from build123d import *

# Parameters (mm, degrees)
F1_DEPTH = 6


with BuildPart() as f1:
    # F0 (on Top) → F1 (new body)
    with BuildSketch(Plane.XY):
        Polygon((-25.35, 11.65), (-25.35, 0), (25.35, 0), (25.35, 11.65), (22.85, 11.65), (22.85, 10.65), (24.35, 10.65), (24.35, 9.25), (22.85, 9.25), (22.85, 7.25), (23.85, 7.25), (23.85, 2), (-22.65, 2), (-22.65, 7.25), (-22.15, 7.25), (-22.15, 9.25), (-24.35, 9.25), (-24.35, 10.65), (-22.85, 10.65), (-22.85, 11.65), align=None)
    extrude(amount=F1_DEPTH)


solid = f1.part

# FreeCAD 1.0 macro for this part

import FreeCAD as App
import Part
import Sketcher
from FreeCAD import Vector


def add_polygon(sketch, points):
    """Adds a closed chain of lines whose ends are joined by coincident constraints."""
    first, n = sketch.GeometryCount, len(points)
    for a, b in zip(points, points[1:] + points[:1]):
        sketch.addGeometry(Part.LineSegment(App.Vector(*a, 0), App.Vector(*b, 0)), False)
    for i in range(n):
        sketch.addConstraint(Sketcher.Constraint("Coincident", first + i, 2, first + (i + 1) % n, 1))

doc = App.newDocument("Part")
body = doc.addObject("PartDesign::Body", "Body")

sketch1 = doc.addObject("Sketcher::SketchObject", "Sketch")
body.addObject(sketch1)
sketch1.AttachmentSupport = (doc.XY_Plane, [""])
sketch1.MapMode = "FlatFace"
add_polygon(sketch1, [(-25.4, 11.7), (-25.4, 0), (25.4, 0), (25.4, 11.7), (22.9, 11.7), (22.9, 10.7), (24.4, 10.7), (24.4, 9.2), (22.9, 9.2), (22.9, 7.2), (23.9, 7.2), (23.9, 2), (-22.6, 2), (-22.6, 7.2), (-22.1, 7.2), (-22.1, 9.2), (-24.4, 9.2), (-24.4, 10.7), (-22.9, 10.7), (-22.9, 11.7)])
sketch1.addConstraint(Sketcher.Constraint("Vertical", 0))
sketch1.addConstraint(Sketcher.Constraint("Horizontal", 1))
sketch1.addConstraint(Sketcher.Constraint("Vertical", 2))
sketch1.addConstraint(Sketcher.Constraint("Horizontal", 3))
sketch1.addConstraint(Sketcher.Constraint("Vertical", 4))
sketch1.addConstraint(Sketcher.Constraint("Horizontal", 5))
sketch1.addConstraint(Sketcher.Constraint("Vertical", 6))
sketch1.addConstraint(Sketcher.Constraint("Horizontal", 7))
sketch1.addConstraint(Sketcher.Constraint("Vertical", 8))
sketch1.addConstraint(Sketcher.Constraint("Horizontal", 9))
sketch1.addConstraint(Sketcher.Constraint("Vertical", 10))
sketch1.addConstraint(Sketcher.Constraint("Horizontal", 11))
sketch1.addConstraint(Sketcher.Constraint("Vertical", 12))
sketch1.addConstraint(Sketcher.Constraint("Horizontal", 13))
sketch1.addConstraint(Sketcher.Constraint("Vertical", 14))
sketch1.addConstraint(Sketcher.Constraint("Horizontal", 15))
sketch1.addConstraint(Sketcher.Constraint("Vertical", 16))
sketch1.addConstraint(Sketcher.Constraint("Horizontal", 17))
sketch1.addConstraint(Sketcher.Constraint("Vertical", 18))
sketch1.addConstraint(Sketcher.Constraint("Horizontal", 19))
sketch1.addConstraint(Sketcher.Constraint("Symmetric", 0, 2, 1, 2, -1, 1))
sketch1.addConstraint(Sketcher.Constraint("Symmetric", 6, 2, 15, 2, -2))
sketch1.addConstraint(Sketcher.Constraint("Symmetric", 4, 2, 17, 2, -2))
sketch1.addConstraint(Sketcher.Constraint("Horizontal", 9, 2, 12, 2))
sketch1.addConstraint(Sketcher.Constraint("Horizontal", 3, 2, 18, 2))
sketch1.addConstraint(Sketcher.Constraint("Vertical", 4, 2, 7, 2))
sketch1.addConstraint(Sketcher.Constraint("Equal", 9, 4))
sketch1.addConstraint(Sketcher.Constraint("DistanceX", 9, 1, 9, 2, 1.0))
sketch1.addConstraint(Sketcher.Constraint("DistanceY", 8, 2, 8, 1, 2.0))
sketch1.addConstraint(Sketcher.Constraint("DistanceX", 1, 1, 1, 2, 50.7))
sketch1.addConstraint(Sketcher.Constraint("DistanceX", 3, 2, 3, 1, 2.5))
sketch1.addConstraint(Sketcher.Constraint("DistanceX", 5, 1, 5, 2, 1.5))
sketch1.addConstraint(Sketcher.Constraint("DistanceX", 11, 2, 11, 1, 46.5))
sketch1.addConstraint(Sketcher.Constraint("DistanceX", 13, 1, 13, 2, 0.5))
sketch1.addConstraint(Sketcher.Constraint("DistanceY", 6, 2, 6, 1, 1.4))
sketch1.addConstraint(Sketcher.Constraint("DistanceY", -1, 1, 10, 2, 2.0))
sketch1.addConstraint(Sketcher.Constraint("DistanceY", 0, 2, 0, 1, 11.65))
pad1 = doc.addObject("PartDesign::Pad", "Pad")
body.addObject(pad1)
pad1.Profile = sketch1
pad1.Length = 6

doc.recompute()
